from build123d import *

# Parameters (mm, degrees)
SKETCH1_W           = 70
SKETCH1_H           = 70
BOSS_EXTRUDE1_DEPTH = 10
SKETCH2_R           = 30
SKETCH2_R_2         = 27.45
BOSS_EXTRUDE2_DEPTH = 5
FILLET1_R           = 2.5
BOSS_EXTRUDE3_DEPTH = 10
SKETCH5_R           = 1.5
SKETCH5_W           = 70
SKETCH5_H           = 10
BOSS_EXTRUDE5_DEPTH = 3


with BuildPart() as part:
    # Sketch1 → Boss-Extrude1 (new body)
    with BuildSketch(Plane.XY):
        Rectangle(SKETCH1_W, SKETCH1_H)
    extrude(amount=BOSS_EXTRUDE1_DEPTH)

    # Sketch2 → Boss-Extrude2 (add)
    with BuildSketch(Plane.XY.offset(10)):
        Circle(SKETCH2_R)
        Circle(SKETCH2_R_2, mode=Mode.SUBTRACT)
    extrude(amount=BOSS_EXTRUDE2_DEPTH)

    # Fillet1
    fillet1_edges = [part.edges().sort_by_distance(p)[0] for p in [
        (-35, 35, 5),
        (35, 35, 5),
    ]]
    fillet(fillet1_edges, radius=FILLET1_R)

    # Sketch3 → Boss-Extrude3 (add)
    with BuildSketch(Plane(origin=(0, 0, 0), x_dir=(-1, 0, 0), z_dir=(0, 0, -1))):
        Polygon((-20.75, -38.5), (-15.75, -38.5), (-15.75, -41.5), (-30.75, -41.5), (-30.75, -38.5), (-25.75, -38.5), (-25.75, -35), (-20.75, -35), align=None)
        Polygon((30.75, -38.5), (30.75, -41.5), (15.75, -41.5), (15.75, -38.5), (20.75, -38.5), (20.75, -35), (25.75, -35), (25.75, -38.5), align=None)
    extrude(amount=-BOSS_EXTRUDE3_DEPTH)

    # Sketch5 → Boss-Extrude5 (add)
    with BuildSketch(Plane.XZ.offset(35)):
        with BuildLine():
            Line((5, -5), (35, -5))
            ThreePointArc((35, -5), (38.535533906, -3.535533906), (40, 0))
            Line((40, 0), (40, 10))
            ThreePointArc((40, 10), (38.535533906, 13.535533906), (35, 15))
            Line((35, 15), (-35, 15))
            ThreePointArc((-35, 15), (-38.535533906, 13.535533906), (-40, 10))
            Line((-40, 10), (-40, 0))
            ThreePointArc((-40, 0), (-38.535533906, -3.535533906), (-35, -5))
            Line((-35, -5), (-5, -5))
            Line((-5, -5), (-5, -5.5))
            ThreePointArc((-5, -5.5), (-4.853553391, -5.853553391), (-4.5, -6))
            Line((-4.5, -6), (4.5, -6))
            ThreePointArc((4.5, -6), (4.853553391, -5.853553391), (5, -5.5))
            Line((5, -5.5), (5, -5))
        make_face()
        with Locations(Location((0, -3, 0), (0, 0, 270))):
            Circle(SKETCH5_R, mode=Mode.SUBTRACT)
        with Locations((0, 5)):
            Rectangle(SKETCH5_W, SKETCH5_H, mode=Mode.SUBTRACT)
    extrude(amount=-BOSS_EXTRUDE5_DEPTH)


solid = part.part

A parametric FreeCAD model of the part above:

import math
import FreeCAD as App
import Part
import Sketcher

V = App.Vector
Q = App.Units.Quantity


def edges_at(feature, points):
    """Names of the edges that pass closest to the given points."""
    edges = feature.Shape.Edges
    near = lambda p: min(range(len(edges)), key=lambda i: edges[i].distToShape(Part.Vertex(*p))[0])
    return sorted({f"Edge{near(p) + 1}" for p in points})

doc = App.newDocument("Part")
body = doc.addObject("PartDesign::Body", "Body")

sketch1 = body.newObject("Sketcher::SketchObject", "Sketch")
sketch1.AttachmentSupport = (doc.getObject("XY_Plane"), [""])
sketch1.MapMode = "FlatFace"
sketch1.addGeometry(Part.LineSegment(V(-35, 35, 0), V(-35, -35, 0)), False)
sketch1.addGeometry(Part.LineSegment(V(-35, -35, 0), V(35, -35, 0)), False)
sketch1.addGeometry(Part.LineSegment(V(35, -35, 0), V(35, 35, 0)), False)
sketch1.addGeometry(Part.LineSegment(V(35, 35, 0), V(-35, 35, 0)), False)
sketch1.addConstraint(Sketcher.Constraint("Coincident", 0, 2, 1, 1))
sketch1.addConstraint(Sketcher.Constraint("Coincident", 1, 2, 2, 1))
sketch1.addConstraint(Sketcher.Constraint("Coincident", 2, 2, 3, 1))
sketch1.addConstraint(Sketcher.Constraint("Coincident", 3, 2, 0, 1))
sketch1.addConstraint(Sketcher.Constraint("Vertical", 0))
sketch1.addConstraint(Sketcher.Constraint("Horizontal", 1))
sketch1.addConstraint(Sketcher.Constraint("Vertical", 2))
sketch1.addConstraint(Sketcher.Constraint("Horizontal", 3))
sketch1.addConstraint(Sketcher.Constraint("Symmetric", 0, 2, 2, 2, -1, 1))
sketch1.addConstraint(Sketcher.Constraint("Equal", 3, 0))
sketch1.addConstraint(Sketcher.Constraint("DistanceX", 1, 1, 1, 2, Q("70 mm")))
pad1 = body.newObject("PartDesign::Pad", "Pad")
pad1.Profile = sketch1
pad1.Length = 10

sketch2 = body.newObject("Sketcher::SketchObject", "Sketch001")
sketch2.AttachmentSupport = (doc.getObject("XY_Plane"), [""])
sketch2.MapMode = "FlatFace"
sketch2.AttachmentOffset = App.Placement(V(0, 0, 10), App.Rotation())
sketch2.addGeometry(Part.Circle(V(0, 0, 0), V(0, 0, 1), 30), False)
sketch2.addGeometry(Part.Circle(V(0, 0, 0), V(0, 0, 1), 27.45), False)
sketch2.addConstraint(Sketcher.Constraint("Coincident", 0, 3, -1, 1))
sketch2.addConstraint(Sketcher.Constraint("Coincident", 1, 3, -1, 1))
sketch2.addConstraint(Sketcher.Constraint("Diameter", 0, Q("60 mm")))
sketch2.addConstraint(Sketcher.Constraint("Diameter", 1, Q("54.9 mm")))
pad2 = body.newObject("PartDesign::Pad", "Pad001")
pad2.Profile = sketch2
pad2.Length = 5
doc.recompute()

fillet = body.newObject("PartDesign::Fillet", "Fillet")
fillet.Base = (pad2, edges_at(pad2, [(-35, 35, 5), (35, 35, 5)]))
fillet.Radius = 2.5

sketch3 = body.newObject("Sketcher::SketchObject", "Sketch002")
sketch3.AttachmentSupport = (doc.getObject("XY_Plane"), [""])
sketch3.MapMode = "FlatFace"
sketch3.addGeometry(Part.LineSegment(V(15.75, -38.5, 0), V(20.75, -38.5, 0)), False)
sketch3.addGeometry(Part.LineSegment(V(20.75, -38.5, 0), V(20.75, -35, 0)), False)
sketch3.addGeometry(Part.LineSegment(V(20.75, -35, 0), V(25.75, -35, 0)), False)
sketch3.addGeometry(Part.LineSegment(V(25.75, -35, 0), V(25.75, -38.5, 0)), False)
sketch3.addGeometry(Part.LineSegment(V(25.75, -38.5, 0), V(30.75, -38.5, 0)), False)
sketch3.addGeometry(Part.LineSegment(V(30.75, -38.5, 0), V(30.75, -41.5, 0)), False)
sketch3.addGeometry(Part.LineSegment(V(30.75, -41.5, 0), V(15.75, -41.5, 0)), False)
sketch3.addGeometry(Part.LineSegment(V(15.75, -41.5, 0), V(15.75, -38.5, 0)), False)
sketch3.addGeometry(Part.LineSegment(V(-30.75, -41.5, 0), V(-30.75, -38.5, 0)), False)
sketch3.addGeometry(Part.LineSegment(V(-30.75, -38.5, 0), V(-25.75, -38.5, 0)), False)
sketch3.addGeometry(Part.LineSegment(V(-25.75, -38.5, 0), V(-25.75, -35, 0)), False)
sketch3.addGeometry(Part.LineSegment(V(-25.75, -35, 0), V(-20.75, -35, 0)), False)
sketch3.addGeometry(Part.LineSegment(V(-20.75, -35, 0), V(-20.75, -38.5, 0)), False)
sketch3.addGeometry(Part.LineSegment(V(-20.75, -38.5, 0), V(-15.75, -38.5, 0)), False)
sketch3.addGeometry(Part.LineSegment(V(-15.75, -38.5, 0), V(-15.75, -41.5, 0)), False)
sketch3.addGeometry(Part.LineSegment(V(-15.75, -41.5, 0), V(-30.75, -41.5, 0)), False)
sketch3.addConstraint(Sketcher.Constraint("Coincident", 0, 2, 1, 1))
sketch3.addConstraint(Sketcher.Constraint("Coincident", 1, 2, 2, 1))
sketch3.addConstraint(Sketcher.Constraint("Coincident", 2, 2, 3, 1))
sketch3.addConstraint(Sketcher.Constraint("Coincident", 3, 2, 4, 1))
sketch3.addConstraint(Sketcher.Constraint("Coincident", 4, 2, 5, 1))
sketch3.addConstraint(Sketcher.Constraint("Coincident", 5, 2, 6, 1))
sketch3.addConstraint(Sketcher.Constraint("Coincident", 6, 2, 7, 1))
sketch3.addConstraint(Sketcher.Constraint("Coincident", 7, 2, 0, 1))
sketch3.addConstraint(Sketcher.Constraint("Coincident", 8, 2, 9, 1))
sketch3.addConstraint(Sketcher.Constraint("Coincident", 9, 2, 10, 1))
sketch3.addConstraint(Sketcher.Constraint("Coincident", 10, 2, 11, 1))
sketch3.addConstraint(Sketcher.Constraint("Coincident", 11, 2, 12, 1))
sketch3.addConstraint(Sketcher.Constraint("Coincident", 12, 2, 13, 1))
sketch3.addConstraint(Sketcher.Constraint("Coincident", 13, 2, 14, 1))
sketch3.addConstraint(Sketcher.Constraint("Coincident", 14, 2, 15, 1))
sketch3.addConstraint(Sketcher.Constraint("Coincident", 15, 2, 8, 1))
sketch3.addConstraint(Sketcher.Constraint("Horizontal", 0))
sketch3.addConstraint(Sketcher.Constraint("Vertical", 1))
sketch3.addConstraint(Sketcher.Constraint("Horizontal", 2))
sketch3.addConstraint(Sketcher.Constraint("Vertical", 3))
sketch3.addConstraint(Sketcher.Constraint("Horizontal", 4))
sketch3.addConstraint(Sketcher.Constraint("Vertical", 5))
sketch3.addConstraint(Sketcher.Constraint("Horizontal", 6))
sketch3.addConstraint(Sketcher.Constraint("Vertical", 7))
sketch3.addConstraint(Sketcher.Constraint("Vertical", 8))
sketch3.addConstraint(Sketcher.Constraint("Horizontal", 9))
sketch3.addConstraint(Sketcher.Constraint("Vertical", 10))
sketch3.addConstraint(Sketcher.Constraint("Horizontal", 11))
sketch3.addConstraint(Sketcher.Constraint("Vertical", 12))
sketch3.addConstraint(Sketcher.Constraint("Horizontal", 13))
sketch3.addConstraint(Sketcher.Constraint("Vertical", 14))
sketch3.addConstraint(Sketcher.Constraint("Horizontal", 15))
sketch3.addConstraint(Sketcher.Constraint("Symmetric", 4, 2, 8, 2, -2))
sketch3.addConstraint(Sketcher.Constraint("Symmetric", 2, 2, 10, 2, -2))
sketch3.addConstraint(Sketcher.Constraint("Symmetric", 0, 2, 12, 2, -2))
sketch3.addConstraint(Sketcher.Constraint("Symmetric", 6, 2, 14, 2, -2))
sketch3.addConstraint(Sketcher.Constraint("Horizontal", 0, 2, 3, 2))
sketch3.addConstraint(Sketcher.Constraint("Equal", 0, 2))
sketch3.addConstraint(Sketcher.Constraint("Equal", 2, 4))
sketch3.addConstraint(Sketcher.Constraint("DistanceX", 0, 1, 0, 2, Q("5 mm")))
sketch3.addConstraint(Sketcher.Constraint("DistanceY", 5, 2, 5, 1, Q("3 mm")))
sketch3.addConstraint(Sketcher.Constraint("DistanceY", 1, 1, 1, 2, Q("3.5 mm")))
sketch3.addConstraint(Sketcher.Constraint("DistanceY", 1, 2, -1, 1, Q("35 mm")))
sketch3.addConstraint(Sketcher.Constraint("DistanceX", 8, 2, 7, 2, Q("46.5 mm")))
pad3 = body.newObject("PartDesign::Pad", "Pad002")
pad3.Profile = sketch3
pad3.Length = 10

sketch4 = body.newObject("Sketcher::SketchObject", "Sketch003")
sketch4.AttachmentSupport = (doc.getObject("XZ_Plane"), [""])
sketch4.MapMode = "FlatFace"
sketch4.AttachmentOffset = App.Placement(V(0, 0, 35), App.Rotation())
sketch4.addGeometry(Part.LineSegment(V(5, -5, 0), V(35, -5, 0)), False)
sketch4.addGeometry(Part.ArcOfCircle(Part.Circle(V(35, 0, 0), V(0, 0, 1), 5), math.radians(-90), math.radians(0)), False)
sketch4.addGeometry(Part.LineSegment(V(40, 0, 0), V(40, 10, 0)), False)
sketch4.addGeometry(Part.ArcOfCircle(Part.Circle(V(35, 10, 0), V(0, 0, 1), 5), math.radians(0), math.radians(90)), False)
sketch4.addGeometry(Part.LineSegment(V(35, 15, 0), V(-35, 15, 0)), False)
sketch4.addGeometry(Part.ArcOfCircle(Part.Circle(V(-35, 10, 0), V(0, 0, 1), 5), math.radians(90), math.radians(180)), False)
sketch4.addGeometry(Part.LineSegment(V(-40, 10, 0), V(-40, 0, 0)), False)
sketch4.addGeometry(Part.ArcOfCircle(Part.Circle(V(-35, 0, 0), V(0, 0, 1), 5), math.radians(180), math.radians(270)), False)
sketch4.addGeometry(Part.LineSegment(V(-35, -5, 0), V(-5, -5, 0)), False)
sketch4.addGeometry(Part.LineSegment(V(-5, -5, 0), V(-5, -5.5, 0)), False)
sketch4.addGeometry(Part.ArcOfCircle(Part.Circle(V(-4.5, -5.5, 0), V(0, 0, 1), 0.5), math.radians(180), math.radians(270)), False)
sketch4.addGeometry(Part.LineSegment(V(-4.5, -6, 0), V(4.5, -6, 0)), False)
sketch4.addGeometry(Part.ArcOfCircle(Part.Circle(V(4.5, -5.5, 0), V(0, 0, 1), 0.5), math.radians(-90), math.radians(0)), False)
sketch4.addGeometry(Part.LineSegment(V(5, -5.5, 0), V(5, -5, 0)), False)
sketch4.addGeometry(Part.Circle(V(0, -3, 0), V(0, 0, 1), 1.5), False)
sketch4.addGeometry(Part.LineSegment(V(35, 0, 0), V(-35, 0, 0)), False)
sketch4.addGeometry(Part.LineSegment(V(-35, 0, 0), V(-35, 10, 0)), False)
sketch4.addGeometry(Part.LineSegment(V(-35, 10, 0), V(35, 10, 0)), False)
sketch4.addGeometry(Part.LineSegment(V(35, 10, 0), V(35, 0, 0)), False)
sketch4.addConstraint(Sketcher.Constraint("Tangent", 0, 2, 1, 1))
sketch4.addConstraint(Sketcher.Constraint("Tangent", 1, 2, 2, 1))
sketch4.addConstraint(Sketcher.Constraint("Tangent", 2, 2, 3, 1))
sketch4.addConstraint(Sketcher.Constraint("Tangent", 3, 2, 4, 1))
sketch4.addConstraint(Sketcher.Constraint("Tangent", 4, 2, 5, 1))
sketch4.addConstraint(Sketcher.Constraint("Tangent", 5, 2, 6, 1))
sketch4.addConstraint(Sketcher.Constraint("Tangent", 6, 2, 7, 1))
sketch4.addConstraint(Sketcher.Constraint("Tangent", 7, 2, 8, 1))
sketch4.addConstraint(Sketcher.Constraint("Coincident", 8, 2, 9, 1))
sketch4.addConstraint(Sketcher.Constraint("Tangent", 9, 2, 10, 1))
sketch4.addConstraint(Sketcher.Constraint("Tangent", 10, 2, 11, 1))
sketch4.addConstraint(Sketcher.Constraint("Tangent", 11, 2, 12, 1))
sketch4.addConstraint(Sketcher.Constraint("Tangent", 12, 2, 13, 1))
sketch4.addConstraint(Sketcher.Constraint("Coincident", 13, 2, 0, 1))
sketch4.addConstraint(Sketcher.Constraint("Coincident", 15, 2, 16, 1))
sketch4.addConstraint(Sketcher.Constraint("Coincident", 16, 2, 17, 1))
sketch4.addConstraint(Sketcher.Constraint("Coincident", 17, 2, 18, 1))
sketch4.addConstraint(Sketcher.Constraint("Coincident", 18, 2, 15, 1))
sketch4.addConstraint(Sketcher.Constraint("Horizontal", 0))
sketch4.addConstraint(Sketcher.Constraint("Vertical", 2))
sketch4.addConstraint(Sketcher.Constraint("Horizontal", 4))
sketch4.addConstraint(Sketcher.Constraint("Vertical", 6))
sketch4.addConstraint(Sketcher.Constraint("Horizontal", 8))
sketch4.addConstraint(Sketcher.Constraint("Vertical", 9))
sketch4.addConstraint(Sketcher.Constraint("Horizontal", 11))
sketch4.addConstraint(Sketcher.Constraint("Vertical", 13))
sketch4.addConstraint(Sketcher.Constraint("Horizontal", 15))
sketch4.addConstraint(Sketcher.Constraint("Vertical", 16))
sketch4.addConstraint(Sketcher.Constraint("Horizontal", 17))
sketch4.addConstraint(Sketcher.Constraint("Vertical", 18))
sketch4.addConstraint(Sketcher.Constraint("Coincident", 15, 2, 7, 3))
sketch4.addConstraint(Sketcher.Constraint("Coincident", 16, 2, 5, 3))
sketch4.addConstraint(Sketcher.Constraint("Coincident", 17, 2, 3, 3))
sketch4.addConstraint(Sketcher.Constraint("Coincident", 18, 2, 1, 3))
sketch4.addConstraint(Sketcher.Constraint("Equal", 10, 12))
sketch4.addConstraint(Sketcher.Constraint("Symmetric", 1, 3, 7, 3, -1, 1))
sketch4.addConstraint(Sketcher.Constraint("PointOnObject", 14, 3, -2))
sketch4.addConstraint(Sketcher.Constraint("Equal", 0, 8))
sketch4.addConstraint(Sketcher.Constraint("Diameter", 14, Q("3 mm")))
sketch4.addConstraint(Sketcher.Constraint("Radius", 1, Q("5 mm")))
sketch4.addConstraint(Sketcher.Constraint("Radius", 10, Q("0.5 mm")))
sketch4.addConstraint(Sketcher.Constraint("DistanceX", 0, 1, 0, 2, Q("30 mm")))
sketch4.addConstraint(Sketcher.Constraint("DistanceX", 4, 2, 4, 1, Q("70 mm")))
sketch4.addConstraint(Sketcher.Constraint("DistanceY", 2, 1, 2, 2, Q("10 mm")))
sketch4.addConstraint(Sketcher.Constraint("DistanceY", 9, 2, 9, 1, Q("0.5 mm")))
sketch4.addConstraint(Sketcher.Constraint("DistanceY", 14, 3, -1, 1, Q("3 mm")))
pad4 = body.newObject("PartDesign::Pad", "Pad003")
pad4.Profile = sketch4
pad4.Length = 3
pad4.Reversed = True

doc.recompute()
